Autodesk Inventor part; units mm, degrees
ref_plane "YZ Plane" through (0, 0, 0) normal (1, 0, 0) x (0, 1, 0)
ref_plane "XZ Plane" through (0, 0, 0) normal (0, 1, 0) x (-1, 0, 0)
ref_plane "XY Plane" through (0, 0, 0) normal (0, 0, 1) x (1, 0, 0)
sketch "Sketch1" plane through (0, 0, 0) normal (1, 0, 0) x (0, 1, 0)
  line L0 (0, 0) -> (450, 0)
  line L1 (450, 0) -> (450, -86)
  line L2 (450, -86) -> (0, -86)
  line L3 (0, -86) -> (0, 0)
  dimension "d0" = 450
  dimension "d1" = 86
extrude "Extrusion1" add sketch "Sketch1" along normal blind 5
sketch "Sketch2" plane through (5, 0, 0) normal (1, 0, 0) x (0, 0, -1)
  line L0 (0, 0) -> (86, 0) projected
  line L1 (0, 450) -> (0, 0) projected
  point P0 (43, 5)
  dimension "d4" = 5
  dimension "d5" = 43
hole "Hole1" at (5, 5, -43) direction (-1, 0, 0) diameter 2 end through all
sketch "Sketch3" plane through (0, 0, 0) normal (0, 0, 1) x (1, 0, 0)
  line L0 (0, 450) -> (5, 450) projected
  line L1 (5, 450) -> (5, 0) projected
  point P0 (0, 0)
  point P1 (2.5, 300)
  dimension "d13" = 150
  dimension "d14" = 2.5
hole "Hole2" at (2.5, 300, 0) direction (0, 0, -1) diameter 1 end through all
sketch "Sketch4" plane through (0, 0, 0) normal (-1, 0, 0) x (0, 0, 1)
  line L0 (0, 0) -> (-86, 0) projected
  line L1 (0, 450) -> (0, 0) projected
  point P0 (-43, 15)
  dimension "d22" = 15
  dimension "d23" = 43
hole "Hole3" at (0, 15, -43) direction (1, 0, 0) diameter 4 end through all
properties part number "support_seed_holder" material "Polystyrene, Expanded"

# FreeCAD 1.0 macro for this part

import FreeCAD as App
import Part
import Sketcher
from FreeCAD import Vector
Q = App.Units.Quantity


def add_polygon(sketch, points):
    """Adds a closed chain of lines whose ends are joined by coincident constraints."""
    first, n = sketch.GeometryCount, len(points)
    for a, b in zip(points, points[1:] + points[:1]):
        sketch.addGeometry(Part.LineSegment(App.Vector(*a, 0), App.Vector(*b, 0)), False)
    for i in range(n):
        sketch.addConstraint(Sketcher.Constraint("Coincident", first + i, 2, first + (i + 1) % n, 1))

doc = App.newDocument("Part")
body = doc.addObject("PartDesign::Body", "Body")

sketch1 = body.newObject("Sketcher::SketchObject", "Sketch")
sketch1.AttachmentSupport = (doc.getObject("YZ_Plane"), [""])
sketch1.MapMode = "FlatFace"
add_polygon(sketch1, [(450, 0), (0, 0), (0, -86), (450, -86)])
sketch1.addConstraint([
    Sketcher.Constraint("Horizontal", 0),
    Sketcher.Constraint("Vertical", 1),
    Sketcher.Constraint("Horizontal", 2),
    Sketcher.Constraint("Vertical", 3),
    Sketcher.Constraint("Coincident", 0, 2, -1, 1),
    Sketcher.Constraint("DistanceX", 0, 2, 0, 1, Q("450 mm")),
    Sketcher.Constraint("DistanceY", 1, 2, 1, 1, Q("86 mm")),
])
pad1 = body.newObject("PartDesign::Pad", "Pad")
pad1.Profile = sketch1
pad1.Length = 5

sketch2 = body.newObject("Sketcher::SketchObject", "Sketch001")
sketch2.AttachmentSupport = (doc.getObject("YZ_Plane"), [""])
sketch2.MapMode = "FlatFace"
sketch2.AttachmentOffset = App.Placement(Vector(0, 0, 5), App.Rotation())
sketch2.addGeometry(Part.Circle(Vector(5, -43, 0), Vector(0, 0, 1), 1), False)
sketch2.addConstraint([
    Sketcher.Constraint("Diameter", 0, Q("2 mm")),
    Sketcher.Constraint("DistanceX", -1, 1, 0, 3, Q("5 mm")),
    Sketcher.Constraint("DistanceY", 0, 3, -1, 1, Q("43 mm")),
])
doc.recompute()
hole = body.newObject("PartDesign::Hole", "Hole")
hole.Profile = sketch2
hole.ThreadType = "None"
hole.Diameter = 2
hole.DepthType = "ThroughAll"

sketch3 = body.newObject("Sketcher::SketchObject", "Sketch002")
sketch3.AttachmentSupport = (doc.getObject("XY_Plane"), [""])
sketch3.MapMode = "FlatFace"
sketch3.addGeometry(Part.Circle(Vector(2.5, 300, 0), Vector(0, 0, 1), 0.5), False)
sketch3.addConstraint([
    Sketcher.Constraint("Diameter", 0, Q("1 mm")),
    Sketcher.Constraint("DistanceY", -1, 1, 0, 3, Q("300 mm")),
    Sketcher.Constraint("DistanceX", -1, 1, 0, 3, Q("2.5 mm")),
])
doc.recompute()
hole2 = body.newObject("PartDesign::Hole", "Hole001")
hole2.Profile = sketch3
hole2.ThreadType = "None"
hole2.Diameter = 1
hole2.DepthType = "ThroughAll"

sketch4 = body.newObject("Sketcher::SketchObject", "Sketch003")
sketch4.AttachmentSupport = (doc.getObject("YZ_Plane"), [""])
sketch4.MapMode = "FlatFace"
sketch4.addGeometry(Part.Circle(Vector(15, -43, 0), Vector(0, 0, 1), 2), False)
sketch4.addConstraint([
    Sketcher.Constraint("Diameter", 0, Q("4 mm")),
    Sketcher.Constraint("DistanceX", -1, 1, 0, 3, Q("15 mm")),
    Sketcher.Constraint("DistanceY", 0, 3, -1, 1, Q("43 mm")),
])
doc.recompute()
hole3 = body.newObject("PartDesign::Hole", "Hole002")
hole3.Profile = sketch4
hole3.ThreadType = "None"
hole3.Diameter = 4
hole3.DepthType = "ThroughAll"
hole3.Reversed = True

doc.recompute()
